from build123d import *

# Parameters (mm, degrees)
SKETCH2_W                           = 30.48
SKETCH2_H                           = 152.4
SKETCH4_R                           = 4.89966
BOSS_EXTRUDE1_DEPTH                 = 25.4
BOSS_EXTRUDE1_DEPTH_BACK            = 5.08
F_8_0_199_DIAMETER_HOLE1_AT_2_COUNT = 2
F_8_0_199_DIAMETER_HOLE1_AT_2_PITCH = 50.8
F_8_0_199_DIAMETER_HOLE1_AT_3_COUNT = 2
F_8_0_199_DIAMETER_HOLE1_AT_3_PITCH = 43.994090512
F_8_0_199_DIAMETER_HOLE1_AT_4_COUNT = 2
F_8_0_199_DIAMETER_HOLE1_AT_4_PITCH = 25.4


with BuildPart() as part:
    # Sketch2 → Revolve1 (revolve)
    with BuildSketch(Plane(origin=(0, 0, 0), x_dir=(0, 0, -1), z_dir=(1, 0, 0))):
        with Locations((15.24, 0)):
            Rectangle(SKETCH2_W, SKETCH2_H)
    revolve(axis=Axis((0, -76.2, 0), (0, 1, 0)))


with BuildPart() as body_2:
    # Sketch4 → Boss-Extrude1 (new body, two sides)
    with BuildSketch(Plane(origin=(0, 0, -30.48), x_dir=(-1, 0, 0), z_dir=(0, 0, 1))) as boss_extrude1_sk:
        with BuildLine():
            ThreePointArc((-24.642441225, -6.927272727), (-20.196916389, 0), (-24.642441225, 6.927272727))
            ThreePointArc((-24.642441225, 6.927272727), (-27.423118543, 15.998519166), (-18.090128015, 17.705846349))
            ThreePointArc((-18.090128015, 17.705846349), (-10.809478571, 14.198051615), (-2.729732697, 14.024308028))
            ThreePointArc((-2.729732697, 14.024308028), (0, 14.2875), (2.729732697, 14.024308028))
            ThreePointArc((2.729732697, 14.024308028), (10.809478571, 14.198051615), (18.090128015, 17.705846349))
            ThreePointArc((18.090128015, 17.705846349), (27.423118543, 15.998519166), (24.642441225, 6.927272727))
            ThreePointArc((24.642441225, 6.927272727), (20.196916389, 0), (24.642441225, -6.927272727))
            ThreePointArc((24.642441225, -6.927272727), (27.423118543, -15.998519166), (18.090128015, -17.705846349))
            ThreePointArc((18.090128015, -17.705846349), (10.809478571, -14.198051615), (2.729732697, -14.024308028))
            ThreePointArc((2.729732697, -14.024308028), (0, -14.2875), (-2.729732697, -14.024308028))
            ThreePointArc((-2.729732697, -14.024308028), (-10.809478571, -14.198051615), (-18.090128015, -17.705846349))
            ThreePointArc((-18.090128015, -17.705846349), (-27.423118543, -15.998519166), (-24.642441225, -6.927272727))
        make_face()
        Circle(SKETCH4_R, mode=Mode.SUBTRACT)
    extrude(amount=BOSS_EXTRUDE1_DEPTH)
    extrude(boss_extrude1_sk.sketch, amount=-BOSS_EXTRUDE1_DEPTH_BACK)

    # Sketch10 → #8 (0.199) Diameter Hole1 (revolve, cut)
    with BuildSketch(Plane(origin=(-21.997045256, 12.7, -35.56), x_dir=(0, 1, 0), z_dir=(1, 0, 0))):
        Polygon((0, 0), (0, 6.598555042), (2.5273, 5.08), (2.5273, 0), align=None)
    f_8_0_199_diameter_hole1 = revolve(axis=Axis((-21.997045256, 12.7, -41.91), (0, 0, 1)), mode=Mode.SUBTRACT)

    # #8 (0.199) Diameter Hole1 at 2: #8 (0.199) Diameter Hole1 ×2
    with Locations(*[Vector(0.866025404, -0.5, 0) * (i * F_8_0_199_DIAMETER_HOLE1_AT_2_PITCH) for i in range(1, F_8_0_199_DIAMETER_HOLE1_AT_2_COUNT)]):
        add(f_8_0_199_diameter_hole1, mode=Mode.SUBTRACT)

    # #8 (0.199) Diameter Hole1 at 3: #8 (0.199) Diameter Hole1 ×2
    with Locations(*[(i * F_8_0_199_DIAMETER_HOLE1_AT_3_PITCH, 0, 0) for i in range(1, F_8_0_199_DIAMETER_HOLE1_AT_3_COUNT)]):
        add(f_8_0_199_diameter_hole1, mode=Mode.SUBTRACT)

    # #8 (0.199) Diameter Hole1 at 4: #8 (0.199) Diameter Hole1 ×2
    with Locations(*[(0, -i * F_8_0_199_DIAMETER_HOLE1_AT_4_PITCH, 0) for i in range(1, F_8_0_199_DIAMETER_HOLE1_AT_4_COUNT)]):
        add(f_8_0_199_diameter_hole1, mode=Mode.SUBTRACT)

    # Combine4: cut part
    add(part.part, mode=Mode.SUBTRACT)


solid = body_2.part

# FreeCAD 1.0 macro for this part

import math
import FreeCAD as App
import Part
import Sketcher
Q = App.Units.Quantity


def add_polygon(sketch, points):
    """Adds a closed chain of lines whose ends are joined by coincident constraints."""
    first, n = sketch.GeometryCount, len(points)
    for a, b in zip(points, points[1:] + points[:1]):
        sketch.addGeometry(Part.LineSegment(App.Vector(*a, 0), App.Vector(*b, 0)), False)
    for i in range(n):
        sketch.addConstraint(Sketcher.Constraint("Coincident", first + i, 2, first + (i + 1) % n, 1))

doc = App.newDocument("Part")
body = doc.addObject("PartDesign::Body", "Body")

# Sketch on YZ plane
sketch1 = body.newObject("Sketcher::SketchObject", "Sketch")
sketch1.AttachmentSupport = (doc.getObject("YZ_Plane"), [""])
sketch1.MapMode = "FlatFace"
add_polygon(sketch1, [(76.2, 0), (-76.2, 0), (-76.2, -30.48), (76.2, -30.48)])  # lines 0-3
sketch1.addConstraint([
    Sketcher.Constraint("Horizontal", 0),
    Sketcher.Constraint("Vertical", 1),
    Sketcher.Constraint("Horizontal", 2),
    Sketcher.Constraint("Vertical", 3),
    Sketcher.Constraint("Symmetric", 0, 2, 3, 2, -1, 1),
    Sketcher.Constraint("DistanceX", 0, 2, 0, 1, Q("6 in")),
    Sketcher.Constraint("DistanceY", 1, 2, 1, 1, Q("1.2 in")),
])
revolution = body.newObject("PartDesign::Revolution", "Revolution")
revolution.Profile = sketch1
revolution.ReferenceAxis = (sketch1, ["H_Axis"])
revolution.Angle = 360
body2 = doc.addObject("PartDesign::Body", "Body001")

# Sketch on XY plane
sketch2 = body2.newObject("Sketcher::SketchObject", "Sketch001")
sketch2.AttachmentSupport = (doc.getObject("XY_Plane001"), [""])
sketch2.MapMode = "FlatFace"
sketch2.AttachmentOffset = App.Placement(App.Vector(0, 0, -1.2 * 25.4), App.Rotation())
sketch2.addGeometry([
    Part.ArcOfCircle(Part.Circle(App.Vector(27.816916, 0, 0), App.Vector(0, 0, 1), 7.62), math.radians(114.619977), math.radians(245.380023)),  # 0
    Part.ArcOfCircle(Part.Circle(App.Vector(21.997045, 12.7, 0), App.Vector(0, 0, 1), 6.35), math.radians(-65.380023), math.radians(127.971001)),  # 1
    Part.ArcOfCircle(Part.Circle(App.Vector(6.369376, 32.723385, 0), App.Vector(0, 0, 1), 19.05), math.radians(-101.0145), math.radians(-52.028999)),  # 2
    Part.ArcOfCircle(Part.Circle(App.Vector(0, 0, 0), App.Vector(0, 0, 1), 14.2875), math.radians(78.9855), math.radians(101.0145)),  # 3
    Part.ArcOfCircle(Part.Circle(App.Vector(-6.369376, 32.723385, 0), App.Vector(0, 0, 1), 19.05), math.radians(-127.971001), math.radians(-78.9855)),  # 4
    Part.ArcOfCircle(Part.Circle(App.Vector(-21.997045, 12.7, 0), App.Vector(0, 0, 1), 6.35), math.radians(52.028999), math.radians(245.380023)),  # 5
    Part.ArcOfCircle(Part.Circle(App.Vector(-27.816916, 0, 0), App.Vector(0, 0, 1), 7.62), math.radians(-65.380023), math.radians(65.380023)),  # 6
    Part.ArcOfCircle(Part.Circle(App.Vector(-21.997045, -12.7, 0), App.Vector(0, 0, 1), 6.35), math.radians(114.619977), math.radians(307.971001)),  # 7
    Part.ArcOfCircle(Part.Circle(App.Vector(-6.369376, -32.723385, 0), App.Vector(0, 0, 1), 19.05), math.radians(78.9855), math.radians(127.971001)),  # 8
    Part.ArcOfCircle(Part.Circle(App.Vector(0, 0, 0), App.Vector(0, 0, 1), 14.2875), math.radians(-101.0145), math.radians(-78.9855)),  # 9
    Part.ArcOfCircle(Part.Circle(App.Vector(6.369376, -32.723385, 0), App.Vector(0, 0, 1), 19.05), math.radians(52.028999), math.radians(101.0145)),  # 10
    Part.ArcOfCircle(Part.Circle(App.Vector(21.997045, -12.7, 0), App.Vector(0, 0, 1), 6.35), math.radians(-127.971001), math.radians(65.380023)),  # 11
    Part.Circle(App.Vector(0, 0, 0), App.Vector(0, 0, 1), 4.89966),  # 12
], False)
sketch2.addConstraint([
    Sketcher.Constraint("Tangent", 0, 1, 1, 1),
    Sketcher.Constraint("Tangent", 1, 2, 2, 2),
    Sketcher.Constraint("Tangent", 2, 1, 3, 1),
    Sketcher.Constraint("Tangent", 3, 2, 4, 2),
    Sketcher.Constraint("Tangent", 4, 1, 5, 1),
    Sketcher.Constraint("Tangent", 5, 2, 6, 2),
    Sketcher.Constraint("Tangent", 6, 1, 7, 1),
    Sketcher.Constraint("Tangent", 7, 2, 8, 2),
    Sketcher.Constraint("Tangent", 8, 1, 9, 1),
    Sketcher.Constraint("Tangent", 9, 2, 10, 2),
    Sketcher.Constraint("Tangent", 10, 1, 11, 1),
    Sketcher.Constraint("Tangent", 11, 2, 0, 2),
    Sketcher.Constraint("Coincident", 3, 3, -1, 1),
    Sketcher.Constraint("Coincident", 9, 3, -1, 1),
    Sketcher.Constraint("Coincident", 12, 3, -1, 1),
    Sketcher.Constraint("Equal", 2, 4),
    Sketcher.Constraint("Equal", 1, 5),
    Sketcher.Constraint("Equal", 0, 6),
    Sketcher.Constraint("Equal", 5, 7),
    Sketcher.Constraint("Equal", 4, 8),
    Sketcher.Constraint("Equal", 3, 9),
    Sketcher.Constraint("Equal", 8, 10),
    Sketcher.Constraint("Equal", 7, 11),
    Sketcher.Constraint("Symmetric", 0, 3, 6, 3, -1, 1),
    Sketcher.Constraint("Symmetric", 1, 3, 5, 3, -2),
    Sketcher.Constraint("Horizontal", 8, 3, 10, 3),
    Sketcher.Constraint("Vertical", 5, 3, 7, 3),
    Sketcher.Constraint("Radius", 0, Q("0.3 in")),
    Sketcher.Constraint("Radius", 1, Q("0.25 in")),
    Sketcher.Constraint("Radius", 2, Q("0.75 in")),
    Sketcher.Constraint("Radius", 3, Q("0.5625 in")),
    Sketcher.Constraint("DistanceY", 7, 3, 5, 3, Q("1 in")),
    Sketcher.Constraint("Diameter", 12, Q("0.3858 in")),
    Sketcher.Constraint("DistanceX", -1, 1, 0, 1, 24.642441),
])
pad1 = body2.newObject("PartDesign::Pad", "Pad")
pad1.Profile = sketch2
pad1.Type = "TwoLengths"
pad1.Length = Q("1 in")
pad1.Length2 = Q("0.2 in")

# Sketch on YZ plane
sketch3 = body2.newObject("Sketcher::SketchObject", "Sketch002")
sketch3.AttachmentSupport = (doc.getObject("YZ_Plane001"), [""])
sketch3.MapMode = "FlatFace"
sketch3.AttachmentOffset = App.Placement(App.Vector(0, 0, -21.997045), App.Rotation())
add_polygon(sketch3, [(12.7, -28.961445), (12.7, -35.56), (15.2273, -35.56), (15.2273, -30.48)])  # lines 0-3
sketch3.addGeometry(Part.LineSegment(App.Vector(12.7, -35.56, 0), App.Vector(12.7, -28.961445, 0)), True)  # axis
sketch3.addConstraint([
    Sketcher.Constraint("Vertical", 0),
    Sketcher.Constraint("Horizontal", 1),
    Sketcher.Constraint("Vertical", 2),
    Sketcher.Constraint("Vertical", 4),
    Sketcher.Constraint("Coincident", 4, 1, 0, 2),
    Sketcher.Constraint("Equal", 0, 4),
    Sketcher.Constraint("DistanceY", 2, 1, 2, 2, Q("0.2 in")),
    Sketcher.Constraint("Angle", 3, Q("149 deg")),
    Sketcher.Constraint("DistanceX", -1, 1, 0, 2, Q("0.5 in")),
    Sketcher.Constraint("DistanceY", 0, 2, -1, 1, Q("1.4 in")),
    Sketcher.Constraint("DistanceX", 1, 1, 1, 2, Q("0.0995 in")),
])
groove = body2.newObject("PartDesign::Groove", "Groove")
groove.Profile = sketch3
groove.ReferenceAxis = (sketch3, ["Axis0"])
groove.Angle = 360
doc.recompute()

datumline = body2.newObject("PartDesign::Line", "DatumLine")
datumline.Placement = App.Placement(App.Vector(0, 0, 0), App.Rotation(App.Vector(0, 0, 1), App.Vector(0.866025404, -0.5, 0)))
linearpattern = body2.newObject("PartDesign::LinearPattern", "LinearPattern")
linearpattern.Originals = [groove]
linearpattern.Direction = (datumline, [""])
linearpattern.Mode = "offset"
linearpattern.Offset = Q("2 in")
linearpattern.Occurrences = 2
body2.Tip = linearpattern
doc.recompute()

linearpattern2 = body2.newObject("PartDesign::LinearPattern", "LinearPattern001")
linearpattern2.Originals = [groove]
linearpattern2.Direction = (doc.getObject("X_Axis001"), [""])
linearpattern2.Mode = "offset"
linearpattern2.Offset = 43.994091
linearpattern2.Occurrences = 2
body2.Tip = linearpattern2
doc.recompute()

linearpattern3 = body2.newObject("PartDesign::LinearPattern", "LinearPattern002")
linearpattern3.Originals = [groove]
linearpattern3.Direction = (doc.getObject("Y_Axis001"), [""])
linearpattern3.Mode = "offset"
linearpattern3.Offset = Q("1 in")
linearpattern3.Occurrences = 2
linearpattern3.Reversed = True
body2.Tip = linearpattern3
doc.recompute()

boolean = body2.newObject("PartDesign::Boolean", "Boolean")
boolean.Type = "Cut"
boolean.addObjects([body])

doc.recompute()
